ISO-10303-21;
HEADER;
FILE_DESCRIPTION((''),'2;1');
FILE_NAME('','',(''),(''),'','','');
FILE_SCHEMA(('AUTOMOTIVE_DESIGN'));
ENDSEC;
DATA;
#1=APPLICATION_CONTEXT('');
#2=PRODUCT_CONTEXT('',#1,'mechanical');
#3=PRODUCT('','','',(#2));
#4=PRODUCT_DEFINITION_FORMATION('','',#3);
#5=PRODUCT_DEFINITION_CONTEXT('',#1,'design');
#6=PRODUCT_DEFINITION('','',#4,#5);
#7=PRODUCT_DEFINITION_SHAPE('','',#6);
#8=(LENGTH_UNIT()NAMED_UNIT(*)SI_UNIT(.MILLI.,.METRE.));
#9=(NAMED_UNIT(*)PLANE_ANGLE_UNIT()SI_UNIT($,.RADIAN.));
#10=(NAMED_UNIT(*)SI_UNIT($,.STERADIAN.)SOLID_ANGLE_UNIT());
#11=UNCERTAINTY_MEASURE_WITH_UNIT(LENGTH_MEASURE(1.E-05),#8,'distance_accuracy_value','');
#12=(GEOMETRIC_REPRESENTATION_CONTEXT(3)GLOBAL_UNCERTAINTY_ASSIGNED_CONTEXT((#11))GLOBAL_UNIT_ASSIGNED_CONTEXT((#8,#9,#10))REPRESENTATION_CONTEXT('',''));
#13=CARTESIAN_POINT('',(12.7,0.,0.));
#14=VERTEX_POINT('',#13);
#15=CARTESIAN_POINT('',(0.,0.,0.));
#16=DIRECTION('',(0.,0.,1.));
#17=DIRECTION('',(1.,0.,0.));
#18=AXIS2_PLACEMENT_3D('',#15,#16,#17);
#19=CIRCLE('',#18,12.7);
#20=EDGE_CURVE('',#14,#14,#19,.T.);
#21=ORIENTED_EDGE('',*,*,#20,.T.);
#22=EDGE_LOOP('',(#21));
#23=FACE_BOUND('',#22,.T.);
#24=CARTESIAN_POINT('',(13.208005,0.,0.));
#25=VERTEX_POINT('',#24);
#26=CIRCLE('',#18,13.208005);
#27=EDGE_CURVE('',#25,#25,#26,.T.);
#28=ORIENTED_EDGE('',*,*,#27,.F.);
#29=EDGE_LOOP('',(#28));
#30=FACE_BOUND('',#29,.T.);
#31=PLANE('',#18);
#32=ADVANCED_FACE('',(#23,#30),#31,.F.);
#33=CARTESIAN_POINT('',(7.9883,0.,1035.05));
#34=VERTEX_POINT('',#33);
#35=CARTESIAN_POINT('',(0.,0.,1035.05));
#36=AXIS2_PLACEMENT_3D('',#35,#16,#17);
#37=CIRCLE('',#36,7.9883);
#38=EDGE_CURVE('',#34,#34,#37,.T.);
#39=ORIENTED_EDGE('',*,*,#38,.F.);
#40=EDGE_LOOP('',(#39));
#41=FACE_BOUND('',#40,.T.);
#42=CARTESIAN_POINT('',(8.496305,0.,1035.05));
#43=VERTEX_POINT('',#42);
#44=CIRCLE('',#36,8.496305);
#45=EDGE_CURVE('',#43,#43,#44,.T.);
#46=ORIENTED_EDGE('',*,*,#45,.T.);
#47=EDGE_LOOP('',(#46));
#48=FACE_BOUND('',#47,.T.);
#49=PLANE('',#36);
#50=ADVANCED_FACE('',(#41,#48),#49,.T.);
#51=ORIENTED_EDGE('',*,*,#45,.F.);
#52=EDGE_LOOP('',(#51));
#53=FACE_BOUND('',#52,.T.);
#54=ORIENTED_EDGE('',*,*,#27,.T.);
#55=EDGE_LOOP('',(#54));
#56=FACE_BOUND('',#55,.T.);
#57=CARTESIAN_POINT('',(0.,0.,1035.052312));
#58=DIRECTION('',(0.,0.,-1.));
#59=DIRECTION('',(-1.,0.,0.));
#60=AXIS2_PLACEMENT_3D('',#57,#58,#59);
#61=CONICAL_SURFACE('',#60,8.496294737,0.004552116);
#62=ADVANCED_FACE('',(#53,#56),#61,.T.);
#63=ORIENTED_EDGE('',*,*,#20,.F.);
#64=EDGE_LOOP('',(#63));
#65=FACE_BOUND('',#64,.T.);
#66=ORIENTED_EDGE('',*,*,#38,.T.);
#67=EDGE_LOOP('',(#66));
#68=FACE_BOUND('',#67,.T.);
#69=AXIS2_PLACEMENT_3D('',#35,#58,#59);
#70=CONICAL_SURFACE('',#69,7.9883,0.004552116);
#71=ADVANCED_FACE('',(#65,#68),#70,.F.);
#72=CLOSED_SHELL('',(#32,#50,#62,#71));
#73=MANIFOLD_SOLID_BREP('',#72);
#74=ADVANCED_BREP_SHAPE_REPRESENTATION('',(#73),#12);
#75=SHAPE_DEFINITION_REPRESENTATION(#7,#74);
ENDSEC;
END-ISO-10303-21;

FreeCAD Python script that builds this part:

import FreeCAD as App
import Part
import Sketcher
Q = App.Units.Quantity


def faces_at(feature, points):
    """Names of the faces that lie closest to the given points."""
    faces = feature.Shape.Faces
    near = lambda p: min(range(len(faces)), key=lambda i: faces[i].distToShape(Part.Vertex(*p))[0])
    return sorted({f"Face{near(p) + 1}" for p in points})

doc = App.newDocument("Part")
params = doc.addObject("Spreadsheet::Sheet", "Params")
for row, (alias, value) in enumerate([
    ("sketch1_diameter", "0.629 in"),
    ("sketch2_diameter", "1 in"),
    ("thickness_wall", "0.02 in"),
], start=1):
    params.set(f"A{row}", alias)
    params.set(f"B{row}", "=" + value)
    params.setAlias(f"B{row}", alias)

body = doc.addObject("PartDesign::Body", "Body")

# Sketch on XY plane
sketch1 = body.newObject("Sketcher::SketchObject", "Sketch")
sketch1.AttachmentSupport = (doc.getObject("XY_Plane"), [""])
sketch1.MapMode = "FlatFace"
sketch1.AttachmentOffset = App.Placement(App.Vector(0, 0, 40.75 * 25.4), App.Rotation())
sketch1.addGeometry(Part.Circle(App.Vector(0, 0, 0), App.Vector(0, 0, 1), 8), False)
sketch1.addConstraint([
    Sketcher.Constraint("Coincident", 0, 3, -1, 1),
    Sketcher.Constraint("Diameter", 0, Q("0.629 in")),
])
sketch1.setExpression("Constraints[1]", "Params.sketch1_diameter")

# Sketch on XY plane
sketch2 = body.newObject("Sketcher::SketchObject", "Sketch001")
sketch2.AttachmentSupport = (doc.getObject("XY_Plane"), [""])
sketch2.MapMode = "FlatFace"
sketch2.addGeometry(Part.Circle(App.Vector(0, 0, 0), App.Vector(0, 0, 1), 13), False)
sketch2.addConstraint([
    Sketcher.Constraint("Coincident", 0, 3, -1, 1),
    Sketcher.Constraint("Diameter", 0, Q("1 in")),
])
sketch2.setExpression("Constraints[1]", "Params.sketch2_diameter")

additiveloft = body.newObject("PartDesign::AdditiveLoft", "AdditiveLoft")
additiveloft.Profile = sketch1
additiveloft.Sections = [sketch2]
doc.recompute()

thickness = body.newObject("PartDesign::Thickness", "Thickness")
thickness.Base = (additiveloft, faces_at(additiveloft, [(0, 0, 1035.05), (0, 0, 0)]))
thickness.setExpression("Value", "Params.thickness_wall")
thickness.Reversed = False
thickness.Join = "Intersection"

doc.recompute()
